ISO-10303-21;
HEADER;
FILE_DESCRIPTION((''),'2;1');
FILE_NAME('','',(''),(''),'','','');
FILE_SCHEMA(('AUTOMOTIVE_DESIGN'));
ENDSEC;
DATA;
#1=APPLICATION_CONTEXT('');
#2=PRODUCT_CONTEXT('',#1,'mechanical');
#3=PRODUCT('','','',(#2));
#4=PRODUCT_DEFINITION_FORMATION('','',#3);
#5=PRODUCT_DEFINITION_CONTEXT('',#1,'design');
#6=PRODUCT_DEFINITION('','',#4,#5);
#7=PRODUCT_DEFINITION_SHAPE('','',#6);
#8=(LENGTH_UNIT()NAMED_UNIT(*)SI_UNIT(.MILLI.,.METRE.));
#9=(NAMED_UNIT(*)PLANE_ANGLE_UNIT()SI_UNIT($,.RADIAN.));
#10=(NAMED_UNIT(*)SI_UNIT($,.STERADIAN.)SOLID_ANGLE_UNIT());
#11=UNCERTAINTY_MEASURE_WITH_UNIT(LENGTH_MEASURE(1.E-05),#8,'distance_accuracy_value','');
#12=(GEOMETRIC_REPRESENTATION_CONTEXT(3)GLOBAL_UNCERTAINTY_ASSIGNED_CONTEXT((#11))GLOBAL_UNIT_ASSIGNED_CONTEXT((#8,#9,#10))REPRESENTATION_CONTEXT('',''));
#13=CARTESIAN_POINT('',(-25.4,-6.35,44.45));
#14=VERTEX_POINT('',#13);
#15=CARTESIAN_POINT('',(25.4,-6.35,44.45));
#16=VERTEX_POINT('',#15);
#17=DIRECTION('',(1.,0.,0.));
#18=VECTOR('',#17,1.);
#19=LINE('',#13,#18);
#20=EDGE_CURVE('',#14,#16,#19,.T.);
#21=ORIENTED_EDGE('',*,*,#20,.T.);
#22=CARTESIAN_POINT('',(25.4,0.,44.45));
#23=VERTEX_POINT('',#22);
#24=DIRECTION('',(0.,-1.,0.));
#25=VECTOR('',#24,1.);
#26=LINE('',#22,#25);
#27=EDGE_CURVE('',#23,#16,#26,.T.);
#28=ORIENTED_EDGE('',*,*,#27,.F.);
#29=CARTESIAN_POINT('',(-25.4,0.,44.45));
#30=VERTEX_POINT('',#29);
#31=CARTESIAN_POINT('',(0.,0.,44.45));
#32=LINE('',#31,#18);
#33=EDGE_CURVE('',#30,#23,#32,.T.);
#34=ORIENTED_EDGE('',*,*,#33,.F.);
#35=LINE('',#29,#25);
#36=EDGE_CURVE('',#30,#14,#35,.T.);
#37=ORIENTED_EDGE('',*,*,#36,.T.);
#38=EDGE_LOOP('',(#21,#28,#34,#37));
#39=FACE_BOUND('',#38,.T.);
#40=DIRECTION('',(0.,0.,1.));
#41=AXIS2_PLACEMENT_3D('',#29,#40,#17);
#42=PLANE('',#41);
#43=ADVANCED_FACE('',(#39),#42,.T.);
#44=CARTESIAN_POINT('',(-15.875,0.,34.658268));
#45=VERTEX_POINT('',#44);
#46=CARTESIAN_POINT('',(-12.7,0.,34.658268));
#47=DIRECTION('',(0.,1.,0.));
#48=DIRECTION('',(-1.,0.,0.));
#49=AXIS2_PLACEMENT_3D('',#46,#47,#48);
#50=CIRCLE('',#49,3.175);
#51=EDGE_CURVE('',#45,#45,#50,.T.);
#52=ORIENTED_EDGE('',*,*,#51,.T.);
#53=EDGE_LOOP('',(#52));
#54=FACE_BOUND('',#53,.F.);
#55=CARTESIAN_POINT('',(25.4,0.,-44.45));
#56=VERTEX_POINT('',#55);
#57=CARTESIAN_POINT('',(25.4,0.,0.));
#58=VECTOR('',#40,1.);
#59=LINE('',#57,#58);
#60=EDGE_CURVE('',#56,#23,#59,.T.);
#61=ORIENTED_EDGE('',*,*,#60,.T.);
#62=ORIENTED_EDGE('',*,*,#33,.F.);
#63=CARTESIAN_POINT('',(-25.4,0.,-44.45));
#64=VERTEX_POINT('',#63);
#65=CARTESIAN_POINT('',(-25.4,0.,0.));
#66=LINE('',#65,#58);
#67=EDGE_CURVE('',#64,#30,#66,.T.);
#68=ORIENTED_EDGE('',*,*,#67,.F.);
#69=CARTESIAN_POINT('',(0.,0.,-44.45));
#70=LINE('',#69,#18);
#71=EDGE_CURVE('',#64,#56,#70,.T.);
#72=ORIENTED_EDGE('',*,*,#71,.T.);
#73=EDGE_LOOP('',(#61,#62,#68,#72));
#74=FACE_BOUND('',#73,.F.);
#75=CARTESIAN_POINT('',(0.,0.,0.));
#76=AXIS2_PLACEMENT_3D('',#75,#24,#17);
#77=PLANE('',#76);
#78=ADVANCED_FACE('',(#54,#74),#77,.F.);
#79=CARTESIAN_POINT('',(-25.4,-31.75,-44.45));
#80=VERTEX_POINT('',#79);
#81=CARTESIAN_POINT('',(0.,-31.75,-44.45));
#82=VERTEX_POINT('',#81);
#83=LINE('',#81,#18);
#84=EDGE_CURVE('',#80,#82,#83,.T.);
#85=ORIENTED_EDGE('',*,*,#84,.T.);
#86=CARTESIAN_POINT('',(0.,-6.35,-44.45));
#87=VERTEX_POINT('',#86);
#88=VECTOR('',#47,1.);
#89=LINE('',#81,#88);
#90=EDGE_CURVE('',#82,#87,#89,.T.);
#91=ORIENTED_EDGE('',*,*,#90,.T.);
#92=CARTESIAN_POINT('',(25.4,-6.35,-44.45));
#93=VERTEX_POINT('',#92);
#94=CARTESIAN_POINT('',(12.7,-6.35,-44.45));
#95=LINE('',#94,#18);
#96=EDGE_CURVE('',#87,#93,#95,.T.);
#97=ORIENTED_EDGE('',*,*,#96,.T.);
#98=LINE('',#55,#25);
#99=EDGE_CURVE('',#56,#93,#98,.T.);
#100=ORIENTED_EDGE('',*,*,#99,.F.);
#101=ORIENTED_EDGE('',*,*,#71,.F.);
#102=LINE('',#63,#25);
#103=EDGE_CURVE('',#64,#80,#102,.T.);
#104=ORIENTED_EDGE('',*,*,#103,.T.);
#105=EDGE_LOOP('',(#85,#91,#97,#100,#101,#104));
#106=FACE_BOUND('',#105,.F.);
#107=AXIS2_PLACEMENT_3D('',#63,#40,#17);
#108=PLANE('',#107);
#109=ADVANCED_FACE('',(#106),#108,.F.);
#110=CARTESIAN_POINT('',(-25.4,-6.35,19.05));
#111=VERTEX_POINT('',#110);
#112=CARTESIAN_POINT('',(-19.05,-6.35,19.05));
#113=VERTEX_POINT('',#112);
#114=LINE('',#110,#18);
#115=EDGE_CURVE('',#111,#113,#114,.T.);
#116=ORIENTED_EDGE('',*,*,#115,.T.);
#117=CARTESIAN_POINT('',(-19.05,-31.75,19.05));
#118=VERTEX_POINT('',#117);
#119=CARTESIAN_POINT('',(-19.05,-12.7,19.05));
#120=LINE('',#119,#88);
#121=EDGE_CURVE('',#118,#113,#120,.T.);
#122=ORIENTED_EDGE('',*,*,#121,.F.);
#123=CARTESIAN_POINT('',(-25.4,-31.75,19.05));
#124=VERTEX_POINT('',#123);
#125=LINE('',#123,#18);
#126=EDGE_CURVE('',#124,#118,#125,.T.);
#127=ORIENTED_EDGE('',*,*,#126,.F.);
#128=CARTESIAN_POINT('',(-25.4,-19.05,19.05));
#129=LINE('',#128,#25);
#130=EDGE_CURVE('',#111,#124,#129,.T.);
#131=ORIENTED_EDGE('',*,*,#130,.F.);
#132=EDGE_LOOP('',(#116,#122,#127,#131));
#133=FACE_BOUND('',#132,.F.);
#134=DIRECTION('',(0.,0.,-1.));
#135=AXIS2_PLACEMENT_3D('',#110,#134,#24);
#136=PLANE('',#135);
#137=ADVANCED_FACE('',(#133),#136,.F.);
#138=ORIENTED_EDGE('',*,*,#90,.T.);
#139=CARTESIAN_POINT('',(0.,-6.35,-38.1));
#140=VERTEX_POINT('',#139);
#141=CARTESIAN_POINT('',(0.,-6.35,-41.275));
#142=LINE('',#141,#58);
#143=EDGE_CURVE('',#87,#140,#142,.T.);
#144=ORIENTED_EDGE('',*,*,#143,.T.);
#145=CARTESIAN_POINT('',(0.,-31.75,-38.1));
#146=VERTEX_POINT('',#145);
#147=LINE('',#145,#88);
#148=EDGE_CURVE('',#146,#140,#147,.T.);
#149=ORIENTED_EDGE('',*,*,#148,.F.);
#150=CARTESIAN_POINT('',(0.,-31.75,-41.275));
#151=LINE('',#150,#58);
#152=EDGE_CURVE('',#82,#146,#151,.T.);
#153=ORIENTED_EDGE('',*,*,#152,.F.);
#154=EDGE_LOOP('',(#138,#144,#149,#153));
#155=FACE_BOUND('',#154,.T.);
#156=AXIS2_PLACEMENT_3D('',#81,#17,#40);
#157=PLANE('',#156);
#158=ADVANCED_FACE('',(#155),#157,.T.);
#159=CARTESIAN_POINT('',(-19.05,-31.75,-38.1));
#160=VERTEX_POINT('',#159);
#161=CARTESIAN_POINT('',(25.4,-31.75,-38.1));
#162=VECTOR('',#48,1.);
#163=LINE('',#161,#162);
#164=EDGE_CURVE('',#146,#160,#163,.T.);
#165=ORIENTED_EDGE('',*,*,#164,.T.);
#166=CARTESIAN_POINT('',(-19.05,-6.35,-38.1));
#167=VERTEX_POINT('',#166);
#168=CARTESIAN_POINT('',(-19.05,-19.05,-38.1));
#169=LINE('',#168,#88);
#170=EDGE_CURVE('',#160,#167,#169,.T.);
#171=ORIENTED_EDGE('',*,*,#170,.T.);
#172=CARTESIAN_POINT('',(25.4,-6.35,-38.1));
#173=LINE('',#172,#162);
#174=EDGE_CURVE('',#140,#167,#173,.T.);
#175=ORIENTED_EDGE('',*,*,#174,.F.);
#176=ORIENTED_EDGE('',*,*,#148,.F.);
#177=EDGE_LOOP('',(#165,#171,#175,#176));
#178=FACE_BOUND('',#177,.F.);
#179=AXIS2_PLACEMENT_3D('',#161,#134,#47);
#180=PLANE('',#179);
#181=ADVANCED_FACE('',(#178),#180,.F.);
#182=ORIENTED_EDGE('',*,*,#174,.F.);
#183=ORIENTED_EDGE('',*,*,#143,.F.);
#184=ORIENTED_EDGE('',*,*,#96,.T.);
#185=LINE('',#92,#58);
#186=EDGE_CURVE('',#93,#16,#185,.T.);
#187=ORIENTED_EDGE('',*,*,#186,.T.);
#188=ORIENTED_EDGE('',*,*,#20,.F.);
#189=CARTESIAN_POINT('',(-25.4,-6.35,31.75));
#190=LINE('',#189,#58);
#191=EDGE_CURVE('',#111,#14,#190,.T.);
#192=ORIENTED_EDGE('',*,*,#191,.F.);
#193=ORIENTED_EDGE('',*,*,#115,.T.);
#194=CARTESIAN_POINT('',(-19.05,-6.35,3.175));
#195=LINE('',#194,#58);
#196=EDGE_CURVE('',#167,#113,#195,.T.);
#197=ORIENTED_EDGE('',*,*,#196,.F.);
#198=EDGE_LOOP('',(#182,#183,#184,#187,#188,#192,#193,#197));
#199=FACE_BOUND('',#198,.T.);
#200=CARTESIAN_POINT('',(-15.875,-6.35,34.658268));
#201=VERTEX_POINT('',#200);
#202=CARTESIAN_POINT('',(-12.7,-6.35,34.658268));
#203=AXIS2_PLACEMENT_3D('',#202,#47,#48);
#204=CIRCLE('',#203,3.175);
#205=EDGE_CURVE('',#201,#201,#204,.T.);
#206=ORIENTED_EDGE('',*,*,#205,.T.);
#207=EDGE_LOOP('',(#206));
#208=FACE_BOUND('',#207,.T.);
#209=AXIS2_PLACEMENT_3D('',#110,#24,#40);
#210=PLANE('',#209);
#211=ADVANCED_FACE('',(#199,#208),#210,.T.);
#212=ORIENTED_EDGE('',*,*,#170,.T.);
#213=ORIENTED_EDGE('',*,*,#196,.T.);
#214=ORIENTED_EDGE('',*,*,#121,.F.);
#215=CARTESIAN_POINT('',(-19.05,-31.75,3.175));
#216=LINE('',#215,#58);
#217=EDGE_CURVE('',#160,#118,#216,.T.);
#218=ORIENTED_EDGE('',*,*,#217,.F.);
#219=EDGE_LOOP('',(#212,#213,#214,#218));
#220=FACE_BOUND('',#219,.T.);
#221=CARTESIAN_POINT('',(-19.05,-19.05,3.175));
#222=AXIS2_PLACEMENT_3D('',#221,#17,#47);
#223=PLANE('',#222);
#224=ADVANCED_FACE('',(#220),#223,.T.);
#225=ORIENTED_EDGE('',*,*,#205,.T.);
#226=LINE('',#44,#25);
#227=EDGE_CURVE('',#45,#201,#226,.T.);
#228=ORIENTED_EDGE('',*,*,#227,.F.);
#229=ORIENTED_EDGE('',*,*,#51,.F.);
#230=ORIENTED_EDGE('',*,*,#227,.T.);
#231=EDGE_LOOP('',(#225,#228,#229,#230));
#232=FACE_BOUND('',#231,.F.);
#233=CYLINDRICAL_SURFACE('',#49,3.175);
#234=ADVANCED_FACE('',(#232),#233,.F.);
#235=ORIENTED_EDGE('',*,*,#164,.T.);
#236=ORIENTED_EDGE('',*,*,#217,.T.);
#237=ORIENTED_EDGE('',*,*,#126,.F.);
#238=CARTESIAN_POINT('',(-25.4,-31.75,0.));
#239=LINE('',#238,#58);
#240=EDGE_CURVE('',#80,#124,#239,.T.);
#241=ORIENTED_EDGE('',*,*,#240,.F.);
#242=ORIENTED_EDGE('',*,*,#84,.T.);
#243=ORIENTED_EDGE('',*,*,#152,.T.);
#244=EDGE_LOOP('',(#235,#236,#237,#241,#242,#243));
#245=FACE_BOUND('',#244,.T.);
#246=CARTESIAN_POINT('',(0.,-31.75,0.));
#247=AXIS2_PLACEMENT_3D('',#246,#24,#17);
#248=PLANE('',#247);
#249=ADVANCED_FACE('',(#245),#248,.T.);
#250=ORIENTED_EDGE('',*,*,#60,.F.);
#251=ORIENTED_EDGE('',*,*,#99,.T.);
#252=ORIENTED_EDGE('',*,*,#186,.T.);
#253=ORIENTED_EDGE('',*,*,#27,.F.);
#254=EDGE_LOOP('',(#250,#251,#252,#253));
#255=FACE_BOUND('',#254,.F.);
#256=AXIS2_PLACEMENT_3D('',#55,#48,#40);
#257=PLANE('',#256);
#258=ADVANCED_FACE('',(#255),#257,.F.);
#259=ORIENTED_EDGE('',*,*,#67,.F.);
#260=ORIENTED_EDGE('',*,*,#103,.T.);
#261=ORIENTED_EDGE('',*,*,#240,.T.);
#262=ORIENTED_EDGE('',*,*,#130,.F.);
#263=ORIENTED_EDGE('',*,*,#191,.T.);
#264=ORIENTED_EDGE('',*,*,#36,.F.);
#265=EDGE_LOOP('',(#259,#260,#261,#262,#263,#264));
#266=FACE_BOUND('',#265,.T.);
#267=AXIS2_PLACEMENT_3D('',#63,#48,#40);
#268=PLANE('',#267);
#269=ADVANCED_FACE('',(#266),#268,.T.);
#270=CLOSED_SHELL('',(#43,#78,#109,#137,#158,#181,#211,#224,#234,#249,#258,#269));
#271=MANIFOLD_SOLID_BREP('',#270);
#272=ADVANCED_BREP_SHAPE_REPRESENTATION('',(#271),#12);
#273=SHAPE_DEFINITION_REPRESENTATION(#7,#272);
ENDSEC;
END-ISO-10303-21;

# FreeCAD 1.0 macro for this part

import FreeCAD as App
import Part
import Sketcher

V = App.Vector
Q = App.Units.Quantity

doc = App.newDocument("Part")
params = doc.addObject("Spreadsheet::Sheet", "Params")
for row, (alias, value) in enumerate([
    ("sketch1_width", "2 in"),
    ("sketch1_height", "3.5 in"),
    ("pad1_length", "1.25 in"),
    ("sketch2_width", "1 in"),
    ("sketch2_height", "3.25 in"),
    ("pocket1_length", "1.75 in"),
    ("sketch3_width", "1 in"),
    ("pocket2_length", "1 in"),
    ("sketch4_width", "1 in"),
    ("sketch4_height", "0.25 in"),
    ("pocket3_length", "1 in"),
    ("sketch5_diameter", "0.25 in"),
    ("pocket4_length", "1 in"),
], start=1):
    params.set(f"A{row}", alias)
    params.set(f"B{row}", "=" + value)
    params.setAlias(f"B{row}", alias)

body = doc.addObject("PartDesign::Body", "Body")

# Sketch on XZ plane
sketch1 = body.newObject("Sketcher::SketchObject", "Sketch")
sketch1.AttachmentSupport = (doc.getObject("XZ_Plane"), [""])
sketch1.MapMode = "FlatFace"
sketch1.addGeometry([
    Part.LineSegment(V(-25, 44, 0), V(-25, -44, 0)),
    Part.LineSegment(V(-25, -44, 0), V(25, -44, 0)),
    Part.LineSegment(V(25, -44, 0), V(25, 44, 0)),
    Part.LineSegment(V(25, 44, 0), V(-25, 44, 0)),
], False)
sketch1.addConstraint([
    Sketcher.Constraint("Coincident", 0, 2, 1, 1),
    Sketcher.Constraint("Coincident", 1, 2, 2, 1),
    Sketcher.Constraint("Coincident", 2, 2, 3, 1),
    Sketcher.Constraint("Coincident", 3, 2, 0, 1),
    Sketcher.Constraint("Vertical", 0),
    Sketcher.Constraint("Horizontal", 1),
    Sketcher.Constraint("Vertical", 2),
    Sketcher.Constraint("Horizontal", 3),
    Sketcher.Constraint("Symmetric", 0, 2, 2, 2, -1, 1),
    Sketcher.Constraint("DistanceX", 1, 1, 1, 2, Q("2 in")),
    Sketcher.Constraint("DistanceY", 0, 2, 0, 1, Q("3.5 in")),
])
sketch1.setExpression("Constraints[9]", "Params.sketch1_width")
sketch1.setExpression("Constraints[10]", "Params.sketch1_height")
pad1 = body.newObject("PartDesign::Pad", "Pad")
pad1.Profile = sketch1
pad1.setExpression("Length", "Params.pad1_length")

# Sketch on YZ plane
sketch2 = body.newObject("Sketcher::SketchObject", "Sketch001")
sketch2.AttachmentSupport = (doc.getObject("YZ_Plane"), [""])
sketch2.MapMode = "FlatFace"
sketch2.AttachmentOffset = App.Placement(V(0, 0, 1 * 25.4), App.Rotation())
sketch2.addGeometry([
    Part.LineSegment(V(-32, 44, 0), V(-32, -38, 0)),
    Part.LineSegment(V(-32, -38, 0), V(-6, -38, 0)),
    Part.LineSegment(V(-6, -38, 0), V(-6, 44, 0)),
    Part.LineSegment(V(-6, 44, 0), V(-32, 44, 0)),
], False)
sketch2.addConstraint([
    Sketcher.Constraint("Coincident", 0, 2, 1, 1),
    Sketcher.Constraint("Coincident", 1, 2, 2, 1),
    Sketcher.Constraint("Coincident", 2, 2, 3, 1),
    Sketcher.Constraint("Coincident", 3, 2, 0, 1),
    Sketcher.Constraint("Vertical", 0),
    Sketcher.Constraint("Horizontal", 1),
    Sketcher.Constraint("Vertical", 2),
    Sketcher.Constraint("Horizontal", 3),
    Sketcher.Constraint("DistanceX", 1, 1, 1, 2, Q("1 in")),
    Sketcher.Constraint("DistanceY", 0, 2, 0, 1, Q("3.25 in")),
    Sketcher.Constraint("DistanceY", 0, 2, -1, 1, Q("1.5 in")),
    Sketcher.Constraint("DistanceX", 0, 2, -1, 1, Q("1.25 in")),
])
sketch2.setExpression("Constraints[8]", "Params.sketch2_width")
sketch2.setExpression("Constraints[9]", "Params.sketch2_height")
pocket1 = body.newObject("PartDesign::Pocket", "Pocket")
pocket1.Profile = sketch2
pocket1.setExpression("Length", "Params.pocket1_length")

# Sketch on YZ plane
sketch3 = body.newObject("Sketcher::SketchObject", "Sketch002")
sketch3.AttachmentSupport = (doc.getObject("YZ_Plane"), [""])
sketch3.MapMode = "FlatFace"
sketch3.AttachmentOffset = App.Placement(V(0, 0, -1 * 25.4), App.Rotation())
sketch3.addGeometry([
    Part.LineSegment(V(-6, 44, 0), V(-6, 19, 0)),
    Part.LineSegment(V(-6, 19, 0), V(-32, 19, 0)),
    Part.LineSegment(V(-32, 19, 0), V(-32, 44, 0)),
    Part.LineSegment(V(-32, 44, 0), V(-6, 44, 0)),
], False)
sketch3.addConstraint([
    Sketcher.Constraint("Coincident", 0, 2, 1, 1),
    Sketcher.Constraint("Coincident", 1, 2, 2, 1),
    Sketcher.Constraint("Coincident", 2, 2, 3, 1),
    Sketcher.Constraint("Coincident", 3, 2, 0, 1),
    Sketcher.Constraint("Vertical", 0),
    Sketcher.Constraint("Horizontal", 1),
    Sketcher.Constraint("Vertical", 2),
    Sketcher.Constraint("Horizontal", 3),
    Sketcher.Constraint("Equal", 3, 0),
    Sketcher.Constraint("DistanceX", 1, 2, 1, 1, Q("1 in")),
    Sketcher.Constraint("DistanceX", 0, 2, -1, 1, Q("0.25 in")),
    Sketcher.Constraint("DistanceY", -1, 1, 0, 2, Q("0.75 in")),
])
sketch3.setExpression("Constraints[9]", "Params.sketch3_width")
pocket2 = body.newObject("PartDesign::Pocket", "Pocket001")
pocket2.Profile = sketch3
pocket2.setExpression("Length", "Params.pocket2_length")
pocket2.Reversed = True

# Sketch on XZ plane
sketch4 = body.newObject("Sketcher::SketchObject", "Sketch003")
sketch4.AttachmentSupport = (doc.getObject("XZ_Plane"), [""])
sketch4.MapMode = "FlatFace"
sketch4.AttachmentOffset = App.Placement(V(0, 0, 1.25 * 25.4), App.Rotation())
sketch4.addGeometry([
    Part.LineSegment(V(0, -38, 0), V(0, -44, 0)),
    Part.LineSegment(V(0, -44, 0), V(25, -44, 0)),
    Part.LineSegment(V(25, -44, 0), V(25, -38, 0)),
    Part.LineSegment(V(25, -38, 0), V(0, -38, 0)),
], False)
sketch4.addConstraint([
    Sketcher.Constraint("Coincident", 0, 2, 1, 1),
    Sketcher.Constraint("Coincident", 1, 2, 2, 1),
    Sketcher.Constraint("Coincident", 2, 2, 3, 1),
    Sketcher.Constraint("Coincident", 3, 2, 0, 1),
    Sketcher.Constraint("Vertical", 0),
    Sketcher.Constraint("Horizontal", 1),
    Sketcher.Constraint("Vertical", 2),
    Sketcher.Constraint("Horizontal", 3),
    Sketcher.Constraint("PointOnObject", 0, 2, -2),
    Sketcher.Constraint("DistanceX", 1, 1, 1, 2, Q("1 in")),
    Sketcher.Constraint("DistanceY", 0, 2, 0, 1, Q("0.25 in")),
    Sketcher.Constraint("DistanceY", 2, 2, -1, 1, Q("1.5 in")),
])
sketch4.setExpression("Constraints[9]", "Params.sketch4_width")
sketch4.setExpression("Constraints[10]", "Params.sketch4_height")
pocket3 = body.newObject("PartDesign::Pocket", "Pocket002")
pocket3.Profile = sketch4
pocket3.setExpression("Length", "Params.pocket3_length")

# Sketch on XZ plane
sketch5 = body.newObject("Sketcher::SketchObject", "Sketch004")
sketch5.AttachmentSupport = (doc.getObject("XZ_Plane"), [""])
sketch5.MapMode = "FlatFace"
sketch5.addGeometry(Part.Circle(V(-12.7, 34.7, 0), V(0, 0, 1), 3.2), False)
sketch5.addConstraint([
    Sketcher.Constraint("Diameter", 0, Q("0.25 in")),
    Sketcher.Constraint("DistanceX", 0, 3, -1, 1, Q("0.5 in")),
    Sketcher.Constraint("DistanceY", -1, 1, 0, 3, 34.658268),
])
sketch5.setExpression("Constraints[0]", "Params.sketch5_diameter")
pocket4 = body.newObject("PartDesign::Pocket", "Pocket003")
pocket4.Profile = sketch5
pocket4.setExpression("Length", "Params.pocket4_length")
pocket4.Reversed = True

doc.recompute()
